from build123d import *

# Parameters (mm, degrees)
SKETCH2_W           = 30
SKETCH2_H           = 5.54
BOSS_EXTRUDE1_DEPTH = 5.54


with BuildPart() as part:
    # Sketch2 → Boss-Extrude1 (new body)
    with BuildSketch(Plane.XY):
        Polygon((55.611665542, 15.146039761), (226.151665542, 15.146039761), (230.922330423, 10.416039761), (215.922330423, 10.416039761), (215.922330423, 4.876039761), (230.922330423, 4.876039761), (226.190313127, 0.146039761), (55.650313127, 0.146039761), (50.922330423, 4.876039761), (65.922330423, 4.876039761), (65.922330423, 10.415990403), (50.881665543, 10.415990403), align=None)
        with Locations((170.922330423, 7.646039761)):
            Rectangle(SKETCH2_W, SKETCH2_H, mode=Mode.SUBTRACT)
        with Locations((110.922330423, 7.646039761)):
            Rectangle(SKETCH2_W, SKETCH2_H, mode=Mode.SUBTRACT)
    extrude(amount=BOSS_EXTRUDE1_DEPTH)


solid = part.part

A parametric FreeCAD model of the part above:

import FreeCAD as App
import Part
import Sketcher


def add_polygon(sketch, points):
    """Adds a closed chain of lines whose ends are joined by coincident constraints."""
    first, n = sketch.GeometryCount, len(points)
    for a, b in zip(points, points[1:] + points[:1]):
        sketch.addGeometry(Part.LineSegment(App.Vector(*a, 0), App.Vector(*b, 0)), False)
    for i in range(n):
        sketch.addConstraint(Sketcher.Constraint("Coincident", first + i, 2, first + (i + 1) % n, 1))

doc = App.newDocument("Part")
body = doc.addObject("PartDesign::Body", "Body")

sketch1 = doc.addObject("Sketcher::SketchObject", "Sketch")
body.addObject(sketch1)
sketch1.AttachmentSupport = (doc.XY_Plane, [""])
sketch1.MapMode = "FlatFace"
add_polygon(sketch1, [(226.151666, 15.14604), (55.611666, 15.14604), (50.881666, 10.41599), (65.92233, 10.41599), (65.92233, 4.87604), (50.92233, 4.87604), (55.650313, 0.14604), (226.190313, 0.14604), (230.92233, 4.87604), (215.92233, 4.87604), (215.92233, 10.41604), (230.92233, 10.41604)])
add_polygon(sketch1, [(155.92233, 4.87604), (155.92233, 10.41604), (185.92233, 10.41604), (185.92233, 4.87604)])
add_polygon(sketch1, [(95.92233, 4.87604), (95.92233, 10.41604), (125.92233, 10.41604), (125.92233, 4.87604)])
sketch1.addConstraint([
    Sketcher.Constraint("Horizontal", 0),
    Sketcher.Constraint("Horizontal", 2),
    Sketcher.Constraint("Vertical", 3),
    Sketcher.Constraint("Horizontal", 4),
    Sketcher.Constraint("Horizontal", 6),
    Sketcher.Constraint("Horizontal", 8),
    Sketcher.Constraint("Vertical", 9),
    Sketcher.Constraint("Horizontal", 10),
    Sketcher.Constraint("Vertical", 12),
    Sketcher.Constraint("Horizontal", 13),
    Sketcher.Constraint("Vertical", 14),
    Sketcher.Constraint("Horizontal", 15),
    Sketcher.Constraint("Vertical", 16),
    Sketcher.Constraint("Horizontal", 17),
    Sketcher.Constraint("Vertical", 18),
    Sketcher.Constraint("Horizontal", 19),
    Sketcher.Constraint("Perpendicular", 5, 7),
    Sketcher.Constraint("Horizontal", 4, 2, 7, 2),
    Sketcher.Constraint("Horizontal", 10, 2, 12, 2),
    Sketcher.Constraint("Horizontal", 8, 2, 14, 2),
    Sketcher.Constraint("Horizontal", 13, 2, 16, 2),
    Sketcher.Constraint("Horizontal", 15, 2, 18, 2),
    Sketcher.Constraint("Vertical", 7, 2, 10, 2),
    Sketcher.Constraint("Equal", 0, 6),
    Sketcher.Constraint("Equal", 4, 8),
    Sketcher.Constraint("Equal", 15, 17),
    Sketcher.Constraint("DistanceX", 4, 2, 4, 1, 15.0),
    Sketcher.Constraint("DistanceX", 13, 1, 13, 2, 30.0),
    Sketcher.Constraint("DistanceY", 5, 2, 0, 2, 15.0),
    Sketcher.Constraint("DistanceX", 3, 2, 7, 2, 165.0),
    Sketcher.Constraint("DistanceX", 12, 2, 9, 2, 60.0),
    Sketcher.Constraint("DistanceX", 2, 2, 16, 2, 30.0),
    Sketcher.Constraint("DistanceX", 0, 2, 0, 1, 170.54),
    Sketcher.Constraint("DistanceY", 9, 1, 9, 2, 5.54),
    Sketcher.Constraint("DistanceX", 1, 2, 0, 2, 4.73),
    Sketcher.Constraint("DistanceY", 3, 2, 3, 1, 5.539951),
    Sketcher.Constraint("DistanceX", 2, 1, 2, 2, 15.040665),
    Sketcher.Constraint("DistanceY", -1, 1, 0, 2, 15.14604),
    Sketcher.Constraint("DistanceX", -1, 1, 2, 2, 65.92233),
    Sketcher.Constraint("Distance", 5, 6.687804),
])
pad1 = doc.addObject("PartDesign::Pad", "Pad")
body.addObject(pad1)
pad1.Profile = sketch1
pad1.Length = 5.54

doc.recompute()
